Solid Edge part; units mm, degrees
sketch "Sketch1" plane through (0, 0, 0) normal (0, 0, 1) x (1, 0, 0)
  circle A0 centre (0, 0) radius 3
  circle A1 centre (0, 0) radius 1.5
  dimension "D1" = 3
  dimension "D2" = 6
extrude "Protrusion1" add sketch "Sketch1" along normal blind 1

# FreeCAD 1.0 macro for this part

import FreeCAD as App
import Part
import Sketcher
from FreeCAD import Vector
Q = App.Units.Quantity

doc = App.newDocument("Part")
params = doc.addObject("Spreadsheet::Sheet", "Params")
for row, (alias, value) in enumerate([
    ("sketch1_diameter", "6 mm"),
    ("sketch1_diameter2", "3 mm"),
    ("pad1_length", "1 mm"),
], start=1):
    params.set(f"A{row}", alias)
    params.set(f"B{row}", "=" + value)
    params.setAlias(f"B{row}", alias)

body = doc.addObject("PartDesign::Body", "Body")

# Sketch on XY plane
sketch1 = body.newObject("Sketcher::SketchObject", "Sketch")
sketch1.AttachmentSupport = (doc.getObject("XY_Plane"), [""])
sketch1.MapMode = "FlatFace"
sketch1.addGeometry(Part.Circle(Vector(0, 0, 0), Vector(0, 0, 1), 3), False)
sketch1.addGeometry(Part.Circle(Vector(0, 0, 0), Vector(0, 0, 1), 1.5), False)
sketch1.addConstraint(Sketcher.Constraint("Coincident", 0, 3, -1, 1))
sketch1.addConstraint(Sketcher.Constraint("Coincident", 1, 3, -1, 1))
sketch1.addConstraint(Sketcher.Constraint("Diameter", 0, Q("6 mm")))
sketch1.addConstraint(Sketcher.Constraint("Diameter", 1, Q("3 mm")))
sketch1.setExpression("Constraints[2]", "Params.sketch1_diameter")
sketch1.setExpression("Constraints[3]", "Params.sketch1_diameter2")
pad1 = body.newObject("PartDesign::Pad", "Pad")
pad1.Profile = sketch1
pad1.setExpression("Length", "Params.pad1_length")

doc.recompute()
